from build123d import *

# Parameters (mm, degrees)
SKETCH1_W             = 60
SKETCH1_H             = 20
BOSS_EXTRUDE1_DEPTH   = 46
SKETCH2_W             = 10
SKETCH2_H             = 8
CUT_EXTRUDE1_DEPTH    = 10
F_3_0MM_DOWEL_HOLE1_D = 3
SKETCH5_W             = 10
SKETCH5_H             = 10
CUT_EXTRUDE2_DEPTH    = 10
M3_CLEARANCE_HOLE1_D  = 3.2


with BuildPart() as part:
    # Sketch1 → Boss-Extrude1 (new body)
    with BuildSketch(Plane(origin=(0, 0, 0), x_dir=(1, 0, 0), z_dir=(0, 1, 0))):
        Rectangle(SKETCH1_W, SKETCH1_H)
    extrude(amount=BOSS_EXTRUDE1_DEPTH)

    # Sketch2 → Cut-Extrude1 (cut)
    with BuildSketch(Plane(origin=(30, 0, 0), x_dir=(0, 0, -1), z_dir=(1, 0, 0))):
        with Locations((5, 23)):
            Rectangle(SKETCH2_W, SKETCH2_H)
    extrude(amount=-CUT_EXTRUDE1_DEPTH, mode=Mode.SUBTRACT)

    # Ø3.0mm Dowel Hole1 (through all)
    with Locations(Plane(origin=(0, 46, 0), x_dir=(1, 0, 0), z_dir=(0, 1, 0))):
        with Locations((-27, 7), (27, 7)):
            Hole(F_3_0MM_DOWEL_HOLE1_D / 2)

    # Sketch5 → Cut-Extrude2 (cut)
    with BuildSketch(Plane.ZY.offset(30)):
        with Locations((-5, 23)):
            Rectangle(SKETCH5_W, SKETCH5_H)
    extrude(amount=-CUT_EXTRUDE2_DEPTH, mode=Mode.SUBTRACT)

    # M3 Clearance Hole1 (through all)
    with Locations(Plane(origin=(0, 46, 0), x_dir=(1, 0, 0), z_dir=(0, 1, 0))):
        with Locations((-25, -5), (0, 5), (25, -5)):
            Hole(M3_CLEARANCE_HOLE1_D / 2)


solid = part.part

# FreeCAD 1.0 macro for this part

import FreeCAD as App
import Part
import Sketcher
Q = App.Units.Quantity

doc = App.newDocument("Part")
params = doc.addObject("Spreadsheet::Sheet", "Params")
for row, (alias, value) in enumerate([
    ("sketch1_width", "60 mm"),
    ("sketch1_height", "20 mm"),
    ("pad1_length", "46 mm"),
    ("sketch2_width", "8 mm"),
    ("sketch2_height", "10 mm"),
    ("pocket1_length", "10 mm"),
    ("sketch3_diameter", "3 mm"),
    ("hole_diameter", "3 mm"),
    ("sketch4_width", "10 mm"),
    ("pocket2_length", "10 mm"),
    ("sketch5_diameter", "3.2 mm"),
    ("hole2_diameter", "3.2 mm"),
], start=1):
    params.set(f"A{row}", alias)
    params.set(f"B{row}", "=" + value)
    params.setAlias(f"B{row}", alias)

body = doc.addObject("PartDesign::Body", "Body")

sketch1 = body.newObject("Sketcher::SketchObject", "Sketch")
sketch1.AttachmentSupport = (doc.getObject("XZ_Plane"), [""])
sketch1.MapMode = "FlatFace"
sketch1.addGeometry(Part.LineSegment(App.Vector(-30, -10, 0), App.Vector(-30, 10, 0)), False)
sketch1.addGeometry(Part.LineSegment(App.Vector(-30, 10, 0), App.Vector(30, 10, 0)), False)
sketch1.addGeometry(Part.LineSegment(App.Vector(30, 10, 0), App.Vector(30, -10, 0)), False)
sketch1.addGeometry(Part.LineSegment(App.Vector(30, -10, 0), App.Vector(-30, -10, 0)), False)
sketch1.addConstraint(Sketcher.Constraint("Coincident", 0, 2, 1, 1))
sketch1.addConstraint(Sketcher.Constraint("Coincident", 1, 2, 2, 1))
sketch1.addConstraint(Sketcher.Constraint("Coincident", 2, 2, 3, 1))
sketch1.addConstraint(Sketcher.Constraint("Coincident", 3, 2, 0, 1))
sketch1.addConstraint(Sketcher.Constraint("Vertical", 0))
sketch1.addConstraint(Sketcher.Constraint("Horizontal", 1))
sketch1.addConstraint(Sketcher.Constraint("Vertical", 2))
sketch1.addConstraint(Sketcher.Constraint("Horizontal", 3))
sketch1.addConstraint(Sketcher.Constraint("Symmetric", 0, 2, 2, 2, -1, 1))
sketch1.addConstraint(Sketcher.Constraint("DistanceX", 1, 1, 1, 2, Q("60 mm")))
sketch1.addConstraint(Sketcher.Constraint("DistanceY", 0, 1, 0, 2, Q("20 mm")))
sketch1.setExpression("Constraints[9]", "Params.sketch1_width")
sketch1.setExpression("Constraints[10]", "Params.sketch1_height")
pad1 = body.newObject("PartDesign::Pad", "Pad")
pad1.Profile = sketch1
pad1.setExpression("Length", "Params.pad1_length")
pad1.Reversed = True

sketch2 = body.newObject("Sketcher::SketchObject", "Sketch001")
sketch2.AttachmentSupport = (doc.getObject("YZ_Plane"), [""])
sketch2.MapMode = "FlatFace"
sketch2.AttachmentOffset = App.Placement(App.Vector(0, 0, 30), App.Rotation())
sketch2.addGeometry(Part.LineSegment(App.Vector(27, 0, 0), App.Vector(19, 0, 0)), False)
sketch2.addGeometry(Part.LineSegment(App.Vector(19, 0, 0), App.Vector(19, -10, 0)), False)
sketch2.addGeometry(Part.LineSegment(App.Vector(19, -10, 0), App.Vector(27, -10, 0)), False)
sketch2.addGeometry(Part.LineSegment(App.Vector(27, -10, 0), App.Vector(27, 0, 0)), False)
sketch2.addConstraint(Sketcher.Constraint("Coincident", 0, 2, 1, 1))
sketch2.addConstraint(Sketcher.Constraint("Coincident", 1, 2, 2, 1))
sketch2.addConstraint(Sketcher.Constraint("Coincident", 2, 2, 3, 1))
sketch2.addConstraint(Sketcher.Constraint("Coincident", 3, 2, 0, 1))
sketch2.addConstraint(Sketcher.Constraint("Horizontal", 0))
sketch2.addConstraint(Sketcher.Constraint("Vertical", 1))
sketch2.addConstraint(Sketcher.Constraint("Horizontal", 2))
sketch2.addConstraint(Sketcher.Constraint("Vertical", 3))
sketch2.addConstraint(Sketcher.Constraint("PointOnObject", 0, 2, -1))
sketch2.addConstraint(Sketcher.Constraint("DistanceX", 0, 2, 0, 1, Q("8 mm")))
sketch2.addConstraint(Sketcher.Constraint("DistanceY", 1, 2, 1, 1, Q("10 mm")))
sketch2.addConstraint(Sketcher.Constraint("DistanceX", -1, 1, 0, 2, Q("19 mm")))
sketch2.setExpression("Constraints[9]", "Params.sketch2_width")
sketch2.setExpression("Constraints[10]", "Params.sketch2_height")
pocket1 = body.newObject("PartDesign::Pocket", "Pocket")
pocket1.Profile = sketch2
pocket1.setExpression("Length", "Params.pocket1_length")

sketch3 = body.newObject("Sketcher::SketchObject", "Sketch002")
sketch3.AttachmentSupport = (doc.getObject("XZ_Plane"), [""])
sketch3.MapMode = "FlatFace"
sketch3.AttachmentOffset = App.Placement(App.Vector(0, 0, -46), App.Rotation())
sketch3.addGeometry(Part.Circle(App.Vector(-27, -7, 0), App.Vector(0, 0, 1), 1.5), False)
sketch3.addGeometry(Part.Circle(App.Vector(27, -7, 0), App.Vector(0, 0, 1), 1.5), False)
sketch3.addConstraint(Sketcher.Constraint("Equal", 0, 1))
sketch3.addConstraint(Sketcher.Constraint("Symmetric", 0, 3, 1, 3, -2))
sketch3.addConstraint(Sketcher.Constraint("Diameter", 0, Q("3 mm")))
sketch3.addConstraint(Sketcher.Constraint("DistanceX", 0, 3, -1, 1, Q("27 mm")))
sketch3.addConstraint(Sketcher.Constraint("DistanceY", 0, 3, -1, 1, Q("7 mm")))
sketch3.setExpression("Constraints[2]", "Params.sketch3_diameter")
doc.recompute()
hole = body.newObject("PartDesign::Hole", "Hole")
hole.Profile = sketch3
hole.ThreadType = "None"
hole.setExpression("Diameter", "Params.hole_diameter")
hole.DepthType = "ThroughAll"
hole.Reversed = True

sketch4 = body.newObject("Sketcher::SketchObject", "Sketch003")
sketch4.AttachmentSupport = (doc.getObject("YZ_Plane"), [""])
sketch4.MapMode = "FlatFace"
sketch4.AttachmentOffset = App.Placement(App.Vector(0, 0, -30), App.Rotation())
sketch4.addGeometry(Part.LineSegment(App.Vector(28, -10, 0), App.Vector(18, -10, 0)), False)
sketch4.addGeometry(Part.LineSegment(App.Vector(18, -10, 0), App.Vector(18, 0, 0)), False)
sketch4.addGeometry(Part.LineSegment(App.Vector(18, 0, 0), App.Vector(28, 0, 0)), False)
sketch4.addGeometry(Part.LineSegment(App.Vector(28, 0, 0), App.Vector(28, -10, 0)), False)
sketch4.addConstraint(Sketcher.Constraint("Coincident", 0, 2, 1, 1))
sketch4.addConstraint(Sketcher.Constraint("Coincident", 1, 2, 2, 1))
sketch4.addConstraint(Sketcher.Constraint("Coincident", 2, 2, 3, 1))
sketch4.addConstraint(Sketcher.Constraint("Coincident", 3, 2, 0, 1))
sketch4.addConstraint(Sketcher.Constraint("Horizontal", 0))
sketch4.addConstraint(Sketcher.Constraint("Vertical", 1))
sketch4.addConstraint(Sketcher.Constraint("Horizontal", 2))
sketch4.addConstraint(Sketcher.Constraint("Vertical", 3))
sketch4.addConstraint(Sketcher.Constraint("PointOnObject", 1, 2, -1))
sketch4.addConstraint(Sketcher.Constraint("Equal", 2, 1))
sketch4.addConstraint(Sketcher.Constraint("DistanceX", 0, 2, 0, 1, Q("10 mm")))
sketch4.addConstraint(Sketcher.Constraint("DistanceX", -1, 1, 0, 2, Q("18 mm")))
sketch4.setExpression("Constraints[10]", "Params.sketch4_width")
pocket2 = body.newObject("PartDesign::Pocket", "Pocket001")
pocket2.Profile = sketch4
pocket2.setExpression("Length", "Params.pocket2_length")
pocket2.Reversed = True

sketch5 = body.newObject("Sketcher::SketchObject", "Sketch004")
sketch5.AttachmentSupport = (doc.getObject("XZ_Plane"), [""])
sketch5.MapMode = "FlatFace"
sketch5.AttachmentOffset = App.Placement(App.Vector(0, 0, -46), App.Rotation())
sketch5.addGeometry(Part.Circle(App.Vector(-25, 5, 0), App.Vector(0, 0, 1), 1.6), False)
sketch5.addGeometry(Part.Circle(App.Vector(0, -5, 0), App.Vector(0, 0, 1), 1.6), False)
sketch5.addGeometry(Part.Circle(App.Vector(25, 5, 0), App.Vector(0, 0, 1), 1.6), False)
sketch5.addConstraint(Sketcher.Constraint("Equal", 0, 1))
sketch5.addConstraint(Sketcher.Constraint("Equal", 1, 2))
sketch5.addConstraint(Sketcher.Constraint("Symmetric", 0, 3, 2, 3, -2))
sketch5.addConstraint(Sketcher.Constraint("PointOnObject", 1, 3, -2))
sketch5.addConstraint(Sketcher.Constraint("Diameter", 0, Q("3.2 mm")))
sketch5.addConstraint(Sketcher.Constraint("DistanceX", 0, 3, -1, 1, Q("25 mm")))
sketch5.addConstraint(Sketcher.Constraint("DistanceY", -1, 1, 0, 3, Q("5 mm")))
sketch5.addConstraint(Sketcher.Constraint("DistanceY", 1, 3, -1, 1, Q("5 mm")))
sketch5.setExpression("Constraints[4]", "Params.sketch5_diameter")
doc.recompute()
hole2 = body.newObject("PartDesign::Hole", "Hole001")
hole2.Profile = sketch5
hole2.ThreadType = "None"
hole2.setExpression("Diameter", "Params.hole2_diameter")
hole2.DepthType = "ThroughAll"
hole2.Reversed = True

doc.recompute()
